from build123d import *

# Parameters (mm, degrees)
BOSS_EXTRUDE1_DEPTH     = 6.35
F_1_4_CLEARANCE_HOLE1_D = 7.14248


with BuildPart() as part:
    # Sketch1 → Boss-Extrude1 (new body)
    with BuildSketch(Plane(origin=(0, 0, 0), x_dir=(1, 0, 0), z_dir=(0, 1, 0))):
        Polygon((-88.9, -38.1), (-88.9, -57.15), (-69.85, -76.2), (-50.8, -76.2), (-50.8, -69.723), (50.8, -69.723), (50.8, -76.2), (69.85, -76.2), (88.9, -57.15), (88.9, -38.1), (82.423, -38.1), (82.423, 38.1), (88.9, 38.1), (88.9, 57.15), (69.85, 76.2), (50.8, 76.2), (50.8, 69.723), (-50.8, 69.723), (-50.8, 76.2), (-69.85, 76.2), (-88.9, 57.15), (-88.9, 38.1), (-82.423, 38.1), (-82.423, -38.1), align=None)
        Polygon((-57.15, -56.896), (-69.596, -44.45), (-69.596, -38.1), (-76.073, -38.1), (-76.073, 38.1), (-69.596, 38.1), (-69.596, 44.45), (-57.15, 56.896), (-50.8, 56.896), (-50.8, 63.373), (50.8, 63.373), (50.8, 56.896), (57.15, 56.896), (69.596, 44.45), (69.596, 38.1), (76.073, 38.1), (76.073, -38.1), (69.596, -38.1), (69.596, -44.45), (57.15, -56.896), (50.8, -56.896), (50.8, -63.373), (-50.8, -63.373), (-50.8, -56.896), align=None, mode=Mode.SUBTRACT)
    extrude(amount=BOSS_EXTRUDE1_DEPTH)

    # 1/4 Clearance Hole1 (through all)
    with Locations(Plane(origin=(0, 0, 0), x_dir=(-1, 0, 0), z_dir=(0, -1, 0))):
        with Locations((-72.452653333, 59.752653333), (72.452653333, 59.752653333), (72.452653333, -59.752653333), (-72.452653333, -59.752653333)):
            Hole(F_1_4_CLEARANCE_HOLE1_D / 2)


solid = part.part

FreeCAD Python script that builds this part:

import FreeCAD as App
import Part
import Sketcher
from FreeCAD import Vector
Q = App.Units.Quantity


def add_polygon(sketch, points):
    """Adds a closed chain of lines whose ends are joined by coincident constraints."""
    first, n = sketch.GeometryCount, len(points)
    for a, b in zip(points, points[1:] + points[:1]):
        sketch.addGeometry(Part.LineSegment(App.Vector(*a, 0), App.Vector(*b, 0)), False)
    for i in range(n):
        sketch.addConstraint(Sketcher.Constraint("Coincident", first + i, 2, first + (i + 1) % n, 1))

doc = App.newDocument("Part")
body = doc.addObject("PartDesign::Body", "Body")

# Sketch on XZ plane
sketch1 = body.newObject("Sketcher::SketchObject", "Sketch")
sketch1.AttachmentSupport = (doc.getObject("XZ_Plane"), [""])
sketch1.MapMode = "FlatFace"
add_polygon(sketch1, [(-89, 38), (-89, 57), (-70, 76), (-51, 76), (-51, 70), (51, 70), (51, 76), (70, 76), (89, 57), (89, 38), (82, 38), (82, -38), (89, -38), (89, -57), (70, -76), (51, -76), (51, -70), (-51, -70), (-51, -76), (-70, -76), (-89, -57), (-89, -38), (-82, -38), (-82, 38)])  # lines 0-23
add_polygon(sketch1, [(-51, 57), (-57, 57), (-70, 44), (-70, 38), (-76, 38), (-76, -38), (-70, -38), (-70, -44), (-57, -57), (-51, -57), (-51, -63), (51, -63), (51, -57), (57, -57), (70, -44), (70, -38), (76, -38), (76, 38), (70, 38), (70, 44), (57, 57), (51, 57), (51, 63), (-51, 63)])  # lines 24-47
sketch1.addConstraint([
    Sketcher.Constraint("Vertical", 0),
    Sketcher.Constraint("Horizontal", 2),
    Sketcher.Constraint("Vertical", 3),
    Sketcher.Constraint("Horizontal", 4),
    Sketcher.Constraint("Vertical", 5),
    Sketcher.Constraint("Horizontal", 6),
    Sketcher.Constraint("Vertical", 8),
    Sketcher.Constraint("Horizontal", 9),
    Sketcher.Constraint("Vertical", 10),
    Sketcher.Constraint("Horizontal", 11),
    Sketcher.Constraint("Vertical", 12),
    Sketcher.Constraint("Horizontal", 14),
    Sketcher.Constraint("Vertical", 15),
    Sketcher.Constraint("Horizontal", 16),
    Sketcher.Constraint("Vertical", 17),
    Sketcher.Constraint("Horizontal", 18),
    Sketcher.Constraint("Vertical", 20),
    Sketcher.Constraint("Horizontal", 21),
    Sketcher.Constraint("Vertical", 22),
    Sketcher.Constraint("Horizontal", 23),
    Sketcher.Constraint("Horizontal", 24),
    Sketcher.Constraint("Vertical", 26),
    Sketcher.Constraint("Horizontal", 27),
    Sketcher.Constraint("Vertical", 28),
    Sketcher.Constraint("Horizontal", 29),
    Sketcher.Constraint("Vertical", 30),
    Sketcher.Constraint("Horizontal", 32),
    Sketcher.Constraint("Vertical", 33),
    Sketcher.Constraint("Horizontal", 34),
    Sketcher.Constraint("Vertical", 35),
    Sketcher.Constraint("Horizontal", 36),
    Sketcher.Constraint("Vertical", 38),
    Sketcher.Constraint("Horizontal", 39),
    Sketcher.Constraint("Vertical", 40),
    Sketcher.Constraint("Horizontal", 41),
    Sketcher.Constraint("Vertical", 42),
    Sketcher.Constraint("Horizontal", 44),
    Sketcher.Constraint("Vertical", 45),
    Sketcher.Constraint("Horizontal", 46),
    Sketcher.Constraint("Vertical", 47),
    Sketcher.Constraint("Symmetric", 0, 2, 12, 2, -1, 1),
    Sketcher.Constraint("Symmetric", 1, 2, 13, 2, -1, 1),
    Sketcher.Constraint("Symmetric", 3, 2, 15, 2, -1, 1),
    Sketcher.Constraint("Symmetric", 5, 2, 17, 2, -1, 1),
    Sketcher.Constraint("Symmetric", 7, 2, 19, 2, -1, 1),
    Sketcher.Constraint("Symmetric", 9, 2, 21, 2, -1, 1),
    Sketcher.Constraint("Symmetric", 24, 2, 36, 2, -1, 1),
    Sketcher.Constraint("Symmetric", 25, 2, 37, 2, -1, 1),
    Sketcher.Constraint("Symmetric", 27, 2, 39, 2, -1, 1),
    Sketcher.Constraint("Symmetric", 29, 2, 41, 2, -1, 1),
    Sketcher.Constraint("Symmetric", 31, 2, 43, 2, -1, 1),
    Sketcher.Constraint("Symmetric", 33, 2, 45, 2, -1, 1),
    Sketcher.Constraint("Symmetric", 2, 2, 5, 2, -2),
    Sketcher.Constraint("Symmetric", 0, 2, 7, 2, -2),
    Sketcher.Constraint("Symmetric", 32, 2, 35, 2, -2),
    Sketcher.Constraint("Symmetric", 30, 2, 37, 2, -2),
    Sketcher.Constraint("Perpendicular", 1, 7),
    Sketcher.Constraint("Perpendicular", 13, 19),
    Sketcher.Constraint("Perpendicular", 19, 25),
    Sketcher.Constraint("Perpendicular", 25, 31),
    Sketcher.Constraint("Perpendicular", 37, 43),
    Sketcher.Constraint("Horizontal", 11, 2, 20, 2),
    Sketcher.Constraint("Horizontal", 9, 2, 22, 2),
    Sketcher.Constraint("Horizontal", 23, 2, 26, 2),
    Sketcher.Constraint("Horizontal", 21, 2, 28, 2),
    Sketcher.Constraint("Vertical", 6, 2, 13, 2),
    Sketcher.Constraint("Vertical", 17, 2, 32, 2),
    Sketcher.Constraint("Vertical", 33, 2, 46, 2),
    Sketcher.Constraint("Equal", 23, 27),
    Sketcher.Constraint("Equal", 18, 0),
    Sketcher.Constraint("Equal", 41, 3),
    Sketcher.Constraint("Equal", 44, 26),
    Sketcher.Constraint("Equal", 17, 33),
    Sketcher.Constraint("DistanceX", 4, 1, 4, 2, Q("4 in")),
    Sketcher.Constraint("DistanceY", 10, 2, 10, 1, Q("3 in")),
    Sketcher.Constraint("DistanceY", -1, 1, 1, 2, Q("3 in")),
    Sketcher.Constraint("DistanceX", 2, 1, 2, 2, Q("0.75 in")),
    Sketcher.Constraint("DistanceX", 24, 2, 24, 1, Q("0.25 in")),
    Sketcher.Constraint("DistanceX", 9, 2, 9, 1, Q("0.255 in")),
    Sketcher.Constraint("DistanceY", -1, 1, 24, 2, Q("2.24 in")),
])
pad1 = body.newObject("PartDesign::Pad", "Pad")
pad1.Profile = sketch1
pad1.Length = Q("0.25 in")
pad1.Reversed = True

# Sketch on XZ plane
sketch2 = body.newObject("Sketcher::SketchObject", "Sketch001")
sketch2.AttachmentSupport = (doc.getObject("XZ_Plane"), [""])
sketch2.MapMode = "FlatFace"
sketch2.addGeometry([
    Part.Circle(Vector(72.5, -59.8, 0), Vector(0, 0, 1), 3.6),
    Part.Circle(Vector(-72.5, -59.8, 0), Vector(0, 0, 1), 3.6),
    Part.Circle(Vector(-72.5, 59.8, 0), Vector(0, 0, 1), 3.6),
    Part.Circle(Vector(72.5, 59.8, 0), Vector(0, 0, 1), 3.6),
], False)
sketch2.addConstraint([
    Sketcher.Constraint("Equal", 0, 1),
    Sketcher.Constraint("Equal", 1, 2),
    Sketcher.Constraint("Equal", 2, 3),
    Sketcher.Constraint("Symmetric", 0, 3, 2, 3, -1, 1),
    Sketcher.Constraint("Symmetric", 1, 3, 3, 3, -1, 1),
    Sketcher.Constraint("Symmetric", 0, 3, 1, 3, -2),
    Sketcher.Constraint("Diameter", 0, Q("0.2812 in")),
    Sketcher.Constraint("DistanceX", -1, 1, 0, 3, Q("72.452653 mm")),
    Sketcher.Constraint("DistanceY", 0, 3, -1, 1, Q("59.752653 mm")),
])
doc.recompute()
hole = body.newObject("PartDesign::Hole", "Hole")
hole.Profile = sketch2
hole.ThreadType = "None"
hole.Diameter = Q("0.2812 in")
hole.DepthType = "ThroughAll"

doc.recompute()
